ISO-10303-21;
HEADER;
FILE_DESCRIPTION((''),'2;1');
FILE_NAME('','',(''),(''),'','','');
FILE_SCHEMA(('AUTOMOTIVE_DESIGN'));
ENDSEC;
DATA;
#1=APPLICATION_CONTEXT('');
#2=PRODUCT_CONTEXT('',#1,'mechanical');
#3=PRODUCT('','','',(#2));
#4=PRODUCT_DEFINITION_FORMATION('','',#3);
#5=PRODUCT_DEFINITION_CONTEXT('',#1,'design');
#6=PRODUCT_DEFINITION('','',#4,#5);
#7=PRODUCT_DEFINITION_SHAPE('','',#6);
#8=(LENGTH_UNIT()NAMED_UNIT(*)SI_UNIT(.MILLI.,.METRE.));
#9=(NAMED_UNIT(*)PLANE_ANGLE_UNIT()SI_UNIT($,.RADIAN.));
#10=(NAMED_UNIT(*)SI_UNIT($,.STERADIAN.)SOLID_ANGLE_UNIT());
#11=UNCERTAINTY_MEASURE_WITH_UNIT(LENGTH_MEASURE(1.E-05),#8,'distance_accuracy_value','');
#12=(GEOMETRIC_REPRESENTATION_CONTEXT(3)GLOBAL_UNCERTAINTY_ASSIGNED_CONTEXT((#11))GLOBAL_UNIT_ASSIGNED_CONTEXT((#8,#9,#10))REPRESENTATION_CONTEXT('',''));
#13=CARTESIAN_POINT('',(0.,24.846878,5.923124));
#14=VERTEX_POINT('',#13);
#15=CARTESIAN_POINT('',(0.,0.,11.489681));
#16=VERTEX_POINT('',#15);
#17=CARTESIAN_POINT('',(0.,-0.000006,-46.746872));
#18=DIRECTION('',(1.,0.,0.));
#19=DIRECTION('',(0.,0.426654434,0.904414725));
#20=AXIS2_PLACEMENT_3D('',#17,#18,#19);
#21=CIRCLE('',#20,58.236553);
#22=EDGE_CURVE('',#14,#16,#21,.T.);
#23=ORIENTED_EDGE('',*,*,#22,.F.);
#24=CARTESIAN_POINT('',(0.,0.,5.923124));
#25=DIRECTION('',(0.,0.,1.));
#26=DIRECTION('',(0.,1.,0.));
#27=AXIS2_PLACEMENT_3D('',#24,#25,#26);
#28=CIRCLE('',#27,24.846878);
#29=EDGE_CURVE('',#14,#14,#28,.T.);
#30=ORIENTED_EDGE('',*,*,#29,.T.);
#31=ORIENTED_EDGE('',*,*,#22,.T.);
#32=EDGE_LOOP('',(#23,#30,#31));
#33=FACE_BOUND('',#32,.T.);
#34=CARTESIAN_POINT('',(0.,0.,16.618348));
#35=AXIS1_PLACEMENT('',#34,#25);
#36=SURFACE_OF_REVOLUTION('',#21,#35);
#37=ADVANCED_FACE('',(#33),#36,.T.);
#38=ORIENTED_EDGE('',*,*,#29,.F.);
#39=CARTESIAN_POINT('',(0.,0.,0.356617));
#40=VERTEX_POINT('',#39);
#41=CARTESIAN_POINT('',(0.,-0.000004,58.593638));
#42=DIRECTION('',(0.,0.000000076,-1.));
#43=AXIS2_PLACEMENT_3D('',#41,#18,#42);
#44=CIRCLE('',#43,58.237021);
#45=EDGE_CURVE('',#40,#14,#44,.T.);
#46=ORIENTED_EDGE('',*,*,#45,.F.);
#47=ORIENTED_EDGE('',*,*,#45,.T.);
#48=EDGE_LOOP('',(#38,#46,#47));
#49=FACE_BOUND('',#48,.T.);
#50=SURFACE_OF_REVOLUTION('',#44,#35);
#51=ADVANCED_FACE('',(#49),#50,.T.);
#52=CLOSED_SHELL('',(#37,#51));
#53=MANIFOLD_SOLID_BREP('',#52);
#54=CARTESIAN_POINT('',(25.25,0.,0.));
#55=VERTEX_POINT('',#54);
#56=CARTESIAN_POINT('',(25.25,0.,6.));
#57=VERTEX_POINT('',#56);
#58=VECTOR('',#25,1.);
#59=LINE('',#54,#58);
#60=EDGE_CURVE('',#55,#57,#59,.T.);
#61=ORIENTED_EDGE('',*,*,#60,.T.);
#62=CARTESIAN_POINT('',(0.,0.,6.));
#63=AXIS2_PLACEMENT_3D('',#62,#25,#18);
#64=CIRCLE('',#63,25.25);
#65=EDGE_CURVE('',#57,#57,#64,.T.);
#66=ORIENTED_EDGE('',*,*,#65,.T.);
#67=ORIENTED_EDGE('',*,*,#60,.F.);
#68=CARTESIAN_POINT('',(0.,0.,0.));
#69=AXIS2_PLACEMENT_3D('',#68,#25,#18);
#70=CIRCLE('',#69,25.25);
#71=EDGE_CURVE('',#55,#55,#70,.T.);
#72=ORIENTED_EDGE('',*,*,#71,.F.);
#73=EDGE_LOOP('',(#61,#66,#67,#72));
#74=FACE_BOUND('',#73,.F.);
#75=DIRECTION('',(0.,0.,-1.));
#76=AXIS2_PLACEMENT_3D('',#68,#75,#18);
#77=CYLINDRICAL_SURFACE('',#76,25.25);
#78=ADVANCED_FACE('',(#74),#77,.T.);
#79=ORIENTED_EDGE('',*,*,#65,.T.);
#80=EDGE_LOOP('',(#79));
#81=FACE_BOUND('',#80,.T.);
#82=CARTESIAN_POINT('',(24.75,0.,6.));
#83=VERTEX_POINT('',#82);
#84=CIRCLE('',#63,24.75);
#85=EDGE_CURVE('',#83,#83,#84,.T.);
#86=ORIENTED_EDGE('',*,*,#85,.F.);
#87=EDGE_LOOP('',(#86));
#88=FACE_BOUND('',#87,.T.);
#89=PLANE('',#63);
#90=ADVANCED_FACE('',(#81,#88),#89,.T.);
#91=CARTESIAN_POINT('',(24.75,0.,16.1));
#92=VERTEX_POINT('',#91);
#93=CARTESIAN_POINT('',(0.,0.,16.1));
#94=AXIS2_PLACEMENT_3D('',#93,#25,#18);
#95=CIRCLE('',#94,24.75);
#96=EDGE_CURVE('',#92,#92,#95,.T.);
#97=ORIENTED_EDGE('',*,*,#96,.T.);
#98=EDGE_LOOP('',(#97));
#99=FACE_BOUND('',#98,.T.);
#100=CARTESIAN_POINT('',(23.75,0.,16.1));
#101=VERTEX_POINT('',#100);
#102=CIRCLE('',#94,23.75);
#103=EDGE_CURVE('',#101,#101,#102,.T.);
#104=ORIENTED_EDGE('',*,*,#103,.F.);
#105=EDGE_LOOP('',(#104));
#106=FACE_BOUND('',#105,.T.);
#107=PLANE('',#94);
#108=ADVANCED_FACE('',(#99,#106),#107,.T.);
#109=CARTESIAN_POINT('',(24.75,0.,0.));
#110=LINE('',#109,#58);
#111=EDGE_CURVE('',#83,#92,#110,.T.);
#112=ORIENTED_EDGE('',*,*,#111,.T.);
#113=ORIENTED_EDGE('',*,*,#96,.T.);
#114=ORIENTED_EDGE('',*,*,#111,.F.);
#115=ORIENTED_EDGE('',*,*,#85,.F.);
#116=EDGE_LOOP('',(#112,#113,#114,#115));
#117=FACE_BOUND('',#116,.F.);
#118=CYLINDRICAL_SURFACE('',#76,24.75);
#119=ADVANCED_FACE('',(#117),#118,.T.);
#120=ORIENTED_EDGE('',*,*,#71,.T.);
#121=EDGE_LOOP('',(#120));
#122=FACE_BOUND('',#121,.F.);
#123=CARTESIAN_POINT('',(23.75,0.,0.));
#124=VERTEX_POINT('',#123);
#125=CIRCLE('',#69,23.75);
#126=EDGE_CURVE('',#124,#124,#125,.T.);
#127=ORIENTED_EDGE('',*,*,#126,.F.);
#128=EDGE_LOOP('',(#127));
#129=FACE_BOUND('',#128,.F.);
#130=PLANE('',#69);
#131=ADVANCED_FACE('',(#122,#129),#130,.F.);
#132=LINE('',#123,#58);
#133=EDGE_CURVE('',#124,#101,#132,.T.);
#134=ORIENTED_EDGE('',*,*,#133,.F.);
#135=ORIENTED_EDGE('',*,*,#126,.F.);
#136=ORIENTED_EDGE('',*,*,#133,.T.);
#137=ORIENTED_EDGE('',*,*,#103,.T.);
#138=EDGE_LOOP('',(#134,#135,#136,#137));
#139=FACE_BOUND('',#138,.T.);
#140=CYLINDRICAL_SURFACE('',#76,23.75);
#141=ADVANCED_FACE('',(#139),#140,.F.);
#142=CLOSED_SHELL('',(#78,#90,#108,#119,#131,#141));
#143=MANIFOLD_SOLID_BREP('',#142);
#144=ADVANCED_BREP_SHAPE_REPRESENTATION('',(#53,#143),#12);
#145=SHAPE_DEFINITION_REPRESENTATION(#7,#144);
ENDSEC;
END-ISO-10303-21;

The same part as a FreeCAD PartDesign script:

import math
import FreeCAD as App
import Part
import Sketcher
from FreeCAD import Vector

doc = App.newDocument("Part")
body = doc.addObject("PartDesign::Body", "Body")

# Sketch on XY plane
sketch1 = body.newObject("Sketcher::SketchObject", "Sketch")
sketch1.AttachmentSupport = (doc.getObject("XY_Plane"), [""])
sketch1.MapMode = "FlatFace"
sketch1.addGeometry([
    Part.Circle(Vector(0, 0, 0), Vector(0, 0, 1), 24.75),
    Part.Circle(Vector(0, 0, 0), Vector(0, 0, 1), 23.75),
], False)
sketch1.addConstraint([
    Sketcher.Constraint("Coincident", 0, 3, -1, 1),
    Sketcher.Constraint("Coincident", 1, 3, -1, 1),
    Sketcher.Constraint("Diameter", 0, 49.5),
    Sketcher.Constraint("Diameter", 1, 47.5),
])
pad1 = body.newObject("PartDesign::Pad", "Pad")
pad1.Profile = sketch1
pad1.Length = 16.1

# Sketch on XY plane
sketch2 = body.newObject("Sketcher::SketchObject", "Sketch001")
sketch2.AttachmentSupport = (doc.getObject("XY_Plane"), [""])
sketch2.MapMode = "FlatFace"
sketch2.addGeometry([
    Part.Circle(Vector(0, 0, 0), Vector(0, 0, 1), 25.25),
    Part.Circle(Vector(0, 0, 0), Vector(0, 0, 1), 24.75),
], False)
sketch2.addConstraint([
    Sketcher.Constraint("Coincident", 0, 3, -1, 1),
    Sketcher.Constraint("Coincident", 1, 3, -1, 1),
    Sketcher.Constraint("Diameter", 0, 50.5),
    Sketcher.Constraint("Diameter", 1, 49.5),
])
pad2 = body.newObject("PartDesign::Pad", "Pad001")
pad2.Profile = sketch2
pad2.Length = 6
body2 = doc.addObject("PartDesign::Body", "Body001")

# Sketch on YZ plane
sketch3 = body2.newObject("Sketcher::SketchObject", "Sketch002")
sketch3.AttachmentSupport = (doc.getObject("YZ_Plane001"), [""])
sketch3.MapMode = "FlatFace"
sketch3.addGeometry([
    Part.ArcOfCircle(Part.Circle(Vector(-0.000004, 58.593638, 0), Vector(0, 0, 1), 58.237021), math.radians(-89.999996), math.radians(-64.74479)),
    Part.ArcOfCircle(Part.Circle(Vector(-0.000006, -46.746872, 0), Vector(0, 0, 1), 58.236553), math.radians(64.744571), math.radians(89.999994)),
    Part.LineSegment(Vector(0, 11.489681, 0), Vector(0, 0.356617, 0)),
], False)
sketch3.addConstraint([
    Sketcher.Constraint("Coincident", 0, 2, 1, 1),
    Sketcher.Constraint("Coincident", 1, 2, 2, 1),
    Sketcher.Constraint("Coincident", 2, 2, 0, 1),
    Sketcher.Constraint("Vertical", 2),
    Sketcher.Constraint("PointOnObject", 1, 2, -2),
    Sketcher.Constraint("Vertical", 0, 3, 1, 3),
    Sketcher.Constraint("Radius", 0, 58.237021),
    Sketcher.Constraint("Radius", 1, 58.236553),
    Sketcher.Constraint("DistanceY", 2, 2, 2, 1, 11.133064),
    Sketcher.Constraint("DistanceX", -1, 1, 0, 2, 24.846878),
    Sketcher.Constraint("DistanceY", -1, 1, 1, 2, 11.489681),
])
revolution = body2.newObject("PartDesign::Revolution", "Revolution")
revolution.Profile = sketch3
revolution.ReferenceAxis = (sketch3, ["V_Axis"])
revolution.Angle = 360

doc.recompute()
